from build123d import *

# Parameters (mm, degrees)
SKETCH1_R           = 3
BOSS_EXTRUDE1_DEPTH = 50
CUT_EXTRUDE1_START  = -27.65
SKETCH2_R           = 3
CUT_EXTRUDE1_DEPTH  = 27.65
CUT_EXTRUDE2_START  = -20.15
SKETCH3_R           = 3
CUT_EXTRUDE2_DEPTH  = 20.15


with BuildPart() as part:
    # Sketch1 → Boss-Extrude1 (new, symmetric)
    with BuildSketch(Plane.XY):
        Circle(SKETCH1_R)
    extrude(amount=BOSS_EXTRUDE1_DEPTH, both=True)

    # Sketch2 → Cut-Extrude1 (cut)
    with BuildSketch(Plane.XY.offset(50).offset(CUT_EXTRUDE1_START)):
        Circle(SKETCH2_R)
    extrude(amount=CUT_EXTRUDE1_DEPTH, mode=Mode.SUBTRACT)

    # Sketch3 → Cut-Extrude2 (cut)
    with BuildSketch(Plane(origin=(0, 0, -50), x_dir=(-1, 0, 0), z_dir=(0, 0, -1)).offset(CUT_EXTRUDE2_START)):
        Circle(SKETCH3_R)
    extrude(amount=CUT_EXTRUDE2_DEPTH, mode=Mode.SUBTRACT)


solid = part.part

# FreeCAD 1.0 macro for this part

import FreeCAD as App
import Part
import Sketcher
from FreeCAD import Vector
Q = App.Units.Quantity

doc = App.newDocument("Part")
body = doc.addObject("PartDesign::Body", "Body")

sketch1 = body.newObject("Sketcher::SketchObject", "Sketch")
sketch1.AttachmentSupport = (doc.getObject("XY_Plane"), [""])
sketch1.MapMode = "FlatFace"
sketch1.addGeometry(Part.Circle(Vector(0, 0, 0), Vector(0, 0, 1), 3), False)
sketch1.addConstraint(Sketcher.Constraint("Coincident", 0, 3, -1, 1))
sketch1.addConstraint(Sketcher.Constraint("Diameter", 0, Q("6 mm")))
pad1 = body.newObject("PartDesign::Pad", "Pad")
pad1.Profile = sketch1
pad1.Length = 100
pad1.Midplane = True

sketch2 = body.newObject("Sketcher::SketchObject", "Sketch001")
sketch2.AttachmentSupport = (doc.getObject("XY_Plane"), [""])
sketch2.MapMode = "FlatFace"
sketch2.AttachmentOffset = App.Placement(Vector(0, 0, 22.35), App.Rotation())
sketch2.addGeometry(Part.Circle(Vector(0, 0, 0), Vector(0, 0, 1), 3), False)
sketch2.addConstraint(Sketcher.Constraint("Coincident", 0, 3, -1, 1))
sketch2.addConstraint(Sketcher.Constraint("Diameter", 0, Q("6 mm")))
pocket1 = body.newObject("PartDesign::Pocket", "Pocket")
pocket1.Profile = sketch2
pocket1.Length = 27.65
pocket1.Reversed = True

sketch3 = body.newObject("Sketcher::SketchObject", "Sketch002")
sketch3.AttachmentSupport = (doc.getObject("XY_Plane"), [""])
sketch3.MapMode = "FlatFace"
sketch3.AttachmentOffset = App.Placement(Vector(0, 0, -29.85), App.Rotation())
sketch3.addGeometry(Part.Circle(Vector(0, 0, 0), Vector(0, 0, 1), 3), False)
sketch3.addConstraint(Sketcher.Constraint("Coincident", 0, 3, -1, 1))
sketch3.addConstraint(Sketcher.Constraint("Diameter", 0, Q("6 mm")))
pocket2 = body.newObject("PartDesign::Pocket", "Pocket001")
pocket2.Profile = sketch3
pocket2.Length = 20.15

doc.recompute()
